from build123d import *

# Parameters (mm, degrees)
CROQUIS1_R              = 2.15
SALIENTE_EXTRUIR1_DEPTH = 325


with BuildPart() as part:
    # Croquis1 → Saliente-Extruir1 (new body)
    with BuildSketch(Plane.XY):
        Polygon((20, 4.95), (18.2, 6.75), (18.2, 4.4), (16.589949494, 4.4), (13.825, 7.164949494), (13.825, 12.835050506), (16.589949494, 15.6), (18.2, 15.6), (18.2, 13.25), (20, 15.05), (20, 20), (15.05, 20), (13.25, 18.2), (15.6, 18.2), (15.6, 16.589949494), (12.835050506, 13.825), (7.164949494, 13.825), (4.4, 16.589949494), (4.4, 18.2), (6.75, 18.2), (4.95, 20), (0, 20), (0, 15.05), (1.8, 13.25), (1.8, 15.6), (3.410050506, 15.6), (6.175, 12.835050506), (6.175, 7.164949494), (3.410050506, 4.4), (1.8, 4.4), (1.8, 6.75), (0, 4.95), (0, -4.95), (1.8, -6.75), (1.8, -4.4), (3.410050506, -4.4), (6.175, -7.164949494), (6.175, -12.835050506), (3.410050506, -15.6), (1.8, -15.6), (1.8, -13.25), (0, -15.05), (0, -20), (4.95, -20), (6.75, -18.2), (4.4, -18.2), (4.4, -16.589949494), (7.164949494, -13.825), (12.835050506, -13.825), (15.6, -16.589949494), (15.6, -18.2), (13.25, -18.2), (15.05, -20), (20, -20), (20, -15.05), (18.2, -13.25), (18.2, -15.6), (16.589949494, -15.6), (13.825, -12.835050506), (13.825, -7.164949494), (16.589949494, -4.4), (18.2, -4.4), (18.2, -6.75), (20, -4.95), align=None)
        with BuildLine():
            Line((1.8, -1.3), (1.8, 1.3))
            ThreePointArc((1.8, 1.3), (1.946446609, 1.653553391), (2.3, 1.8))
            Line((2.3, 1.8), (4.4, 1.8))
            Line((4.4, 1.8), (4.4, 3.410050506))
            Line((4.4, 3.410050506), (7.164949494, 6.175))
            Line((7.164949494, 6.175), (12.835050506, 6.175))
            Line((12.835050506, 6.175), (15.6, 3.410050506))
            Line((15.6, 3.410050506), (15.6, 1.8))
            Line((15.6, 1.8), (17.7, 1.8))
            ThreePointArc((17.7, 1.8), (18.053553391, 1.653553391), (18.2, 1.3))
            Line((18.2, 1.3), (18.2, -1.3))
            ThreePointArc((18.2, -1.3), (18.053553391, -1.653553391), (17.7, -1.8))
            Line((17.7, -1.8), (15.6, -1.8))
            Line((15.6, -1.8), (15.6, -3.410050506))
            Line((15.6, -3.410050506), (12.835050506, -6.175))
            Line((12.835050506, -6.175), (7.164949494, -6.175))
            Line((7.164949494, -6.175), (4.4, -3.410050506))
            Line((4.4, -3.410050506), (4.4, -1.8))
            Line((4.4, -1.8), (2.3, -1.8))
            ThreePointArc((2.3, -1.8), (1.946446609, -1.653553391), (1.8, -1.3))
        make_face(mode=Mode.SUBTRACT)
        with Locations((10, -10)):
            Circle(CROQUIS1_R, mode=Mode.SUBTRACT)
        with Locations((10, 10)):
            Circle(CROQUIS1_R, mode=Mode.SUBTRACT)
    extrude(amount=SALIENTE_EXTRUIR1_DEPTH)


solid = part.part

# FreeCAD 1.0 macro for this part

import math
import FreeCAD as App
import Part
import Sketcher

V = App.Vector
Q = App.Units.Quantity


def add_polygon(sketch, points):
    """Adds a closed chain of lines whose ends are joined by coincident constraints."""
    first, n = sketch.GeometryCount, len(points)
    for a, b in zip(points, points[1:] + points[:1]):
        sketch.addGeometry(Part.LineSegment(App.Vector(*a, 0), App.Vector(*b, 0)), False)
    for i in range(n):
        sketch.addConstraint(Sketcher.Constraint("Coincident", first + i, 2, first + (i + 1) % n, 1))

doc = App.newDocument("Part")
body = doc.addObject("PartDesign::Body", "Body")

# Sketch on XY plane
sketch1 = body.newObject("Sketcher::SketchObject", "Sketch")
sketch1.AttachmentSupport = (doc.getObject("XY_Plane"), [""])
sketch1.MapMode = "FlatFace"
add_polygon(sketch1, [(20, 4.95), (18.2, 6.75), (18.2, 4.4), (16.589949, 4.4), (13.825, 7.164949), (13.825, 12.835051), (16.589949, 15.6), (18.2, 15.6), (18.2, 13.25), (20, 15.05), (20, 20), (15.05, 20), (13.25, 18.2), (15.6, 18.2), (15.6, 16.589949), (12.835051, 13.825), (7.164949, 13.825), (4.4, 16.589949), (4.4, 18.2), (6.75, 18.2), (4.95, 20), (0, 20), (0, 15.05), (1.8, 13.25), (1.8, 15.6), (3.410051, 15.6), (6.175, 12.835051), (6.175, 7.164949), (3.410051, 4.4), (1.8, 4.4), (1.8, 6.75), (0, 4.95), (0, -4.95), (1.8, -6.75), (1.8, -4.4), (3.410051, -4.4), (6.175, -7.164949), (6.175, -12.835051), (3.410051, -15.6), (1.8, -15.6), (1.8, -13.25), (0, -15.05), (0, -20), (4.95, -20), (6.75, -18.2), (4.4, -18.2), (4.4, -16.589949), (7.164949, -13.825), (12.835051, -13.825), (15.6, -16.589949), (15.6, -18.2), (13.25, -18.2), (15.05, -20), (20, -20), (20, -15.05), (18.2, -13.25), (18.2, -15.6), (16.589949, -15.6), (13.825, -12.835051), (13.825, -7.164949), (16.589949, -4.4), (18.2, -4.4), (18.2, -6.75), (20, -4.95)])  # lines 0-63
sketch1.addGeometry(Part.Circle(V(10, -10, 0), V(0, 0, 1), 2.15), False)  # 64
sketch1.addGeometry(Part.ArcOfCircle(Part.Circle(V(2.3, -1.3, 0), V(0, 0, 1), 0.5), math.radians(180), math.radians(270)), False)  # 65
sketch1.addGeometry(Part.LineSegment(V(1.8, -1.3, 0), V(1.8, 1.3, 0)), False)  # 66
sketch1.addGeometry(Part.ArcOfCircle(Part.Circle(V(2.3, 1.3, 0), V(0, 0, 1), 0.5), math.radians(90), math.radians(180)), False)  # 67
sketch1.addGeometry(Part.LineSegment(V(2.3, 1.8, 0), V(4.4, 1.8, 0)), False)  # 68
sketch1.addGeometry(Part.LineSegment(V(4.4, 1.8, 0), V(4.4, 3.410051, 0)), False)  # 69
sketch1.addGeometry(Part.LineSegment(V(4.4, 3.410051, 0), V(7.164949, 6.175, 0)), False)  # 70
sketch1.addGeometry(Part.LineSegment(V(7.164949, 6.175, 0), V(12.835051, 6.175, 0)), False)  # 71
sketch1.addGeometry(Part.LineSegment(V(12.835051, 6.175, 0), V(15.6, 3.410051, 0)), False)  # 72
sketch1.addGeometry(Part.LineSegment(V(15.6, 3.410051, 0), V(15.6, 1.8, 0)), False)  # 73
sketch1.addGeometry(Part.LineSegment(V(15.6, 1.8, 0), V(17.7, 1.8, 0)), False)  # 74
sketch1.addGeometry(Part.ArcOfCircle(Part.Circle(V(17.7, 1.3, 0), V(0, 0, 1), 0.5), math.radians(0), math.radians(90)), False)  # 75
sketch1.addGeometry(Part.LineSegment(V(18.2, 1.3, 0), V(18.2, -1.3, 0)), False)  # 76
sketch1.addGeometry(Part.ArcOfCircle(Part.Circle(V(17.7, -1.3, 0), V(0, 0, 1), 0.5), math.radians(-90), math.radians(0)), False)  # 77
sketch1.addGeometry(Part.LineSegment(V(17.7, -1.8, 0), V(15.6, -1.8, 0)), False)  # 78
sketch1.addGeometry(Part.LineSegment(V(15.6, -1.8, 0), V(15.6, -3.410051, 0)), False)  # 79
sketch1.addGeometry(Part.LineSegment(V(15.6, -3.410051, 0), V(12.835051, -6.175, 0)), False)  # 80
sketch1.addGeometry(Part.LineSegment(V(12.835051, -6.175, 0), V(7.164949, -6.175, 0)), False)  # 81
sketch1.addGeometry(Part.LineSegment(V(7.164949, -6.175, 0), V(4.4, -3.410051, 0)), False)  # 82
sketch1.addGeometry(Part.LineSegment(V(4.4, -3.410051, 0), V(4.4, -1.8, 0)), False)  # 83
sketch1.addGeometry(Part.LineSegment(V(4.4, -1.8, 0), V(2.3, -1.8, 0)), False)  # 84
sketch1.addGeometry(Part.Circle(V(10, 10, 0), V(0, 0, 1), 2.15), False)  # 85
sketch1.addConstraint([
    Sketcher.Constraint("Tangent", 65, 1, 66, 1),
    Sketcher.Constraint("Tangent", 66, 2, 67, 2),
    Sketcher.Constraint("Tangent", 67, 1, 68, 1),
    Sketcher.Constraint("Coincident", 68, 2, 69, 1),
    Sketcher.Constraint("Coincident", 69, 2, 70, 1),
    Sketcher.Constraint("Coincident", 70, 2, 71, 1),
    Sketcher.Constraint("Coincident", 71, 2, 72, 1),
    Sketcher.Constraint("Coincident", 72, 2, 73, 1),
    Sketcher.Constraint("Coincident", 73, 2, 74, 1),
    Sketcher.Constraint("Tangent", 74, 2, 75, 2),
    Sketcher.Constraint("Tangent", 75, 1, 76, 1),
    Sketcher.Constraint("Tangent", 76, 2, 77, 2),
    Sketcher.Constraint("Tangent", 77, 1, 78, 1),
    Sketcher.Constraint("Coincident", 78, 2, 79, 1),
    Sketcher.Constraint("Coincident", 79, 2, 80, 1),
    Sketcher.Constraint("Coincident", 80, 2, 81, 1),
    Sketcher.Constraint("Coincident", 81, 2, 82, 1),
    Sketcher.Constraint("Coincident", 82, 2, 83, 1),
    Sketcher.Constraint("Coincident", 83, 2, 84, 1),
    Sketcher.Constraint("Tangent", 84, 2, 65, 2),
    Sketcher.Constraint("Vertical", 1),
    Sketcher.Constraint("Horizontal", 2),
    Sketcher.Constraint("Vertical", 4),
    Sketcher.Constraint("Horizontal", 6),
    Sketcher.Constraint("Vertical", 7),
    Sketcher.Constraint("Vertical", 9),
    Sketcher.Constraint("Horizontal", 10),
    Sketcher.Constraint("Horizontal", 12),
    Sketcher.Constraint("Vertical", 13),
    Sketcher.Constraint("Horizontal", 15),
    Sketcher.Constraint("Vertical", 17),
    Sketcher.Constraint("Horizontal", 18),
    Sketcher.Constraint("Horizontal", 20),
    Sketcher.Constraint("Vertical", 21),
    Sketcher.Constraint("Vertical", 23),
    Sketcher.Constraint("Horizontal", 24),
    Sketcher.Constraint("Vertical", 26),
    Sketcher.Constraint("Horizontal", 28),
    Sketcher.Constraint("Vertical", 29),
    Sketcher.Constraint("Vertical", 31),
    Sketcher.Constraint("Vertical", 33),
    Sketcher.Constraint("Horizontal", 34),
    Sketcher.Constraint("Vertical", 36),
    Sketcher.Constraint("Horizontal", 38),
    Sketcher.Constraint("Vertical", 39),
    Sketcher.Constraint("Vertical", 41),
    Sketcher.Constraint("Horizontal", 42),
    Sketcher.Constraint("Horizontal", 44),
    Sketcher.Constraint("Vertical", 45),
    Sketcher.Constraint("Horizontal", 47),
    Sketcher.Constraint("Vertical", 49),
    Sketcher.Constraint("Horizontal", 50),
    Sketcher.Constraint("Horizontal", 52),
    Sketcher.Constraint("Vertical", 53),
    Sketcher.Constraint("Vertical", 55),
    Sketcher.Constraint("Horizontal", 56),
    Sketcher.Constraint("Vertical", 58),
    Sketcher.Constraint("Horizontal", 60),
    Sketcher.Constraint("Vertical", 61),
    Sketcher.Constraint("Vertical", 63),
    Sketcher.Constraint("Vertical", 66),
    Sketcher.Constraint("Horizontal", 68),
    Sketcher.Constraint("Vertical", 69),
    Sketcher.Constraint("Horizontal", 71),
    Sketcher.Constraint("Vertical", 73),
    Sketcher.Constraint("Horizontal", 74),
    Sketcher.Constraint("Vertical", 76),
    Sketcher.Constraint("Horizontal", 78),
    Sketcher.Constraint("Vertical", 79),
    Sketcher.Constraint("Horizontal", 81),
    Sketcher.Constraint("Vertical", 83),
    Sketcher.Constraint("Horizontal", 84),
    Sketcher.Constraint("Equal", 65, 67),
    Sketcher.Constraint("Equal", 67, 75),
    Sketcher.Constraint("Equal", 75, 77),
    Sketcher.Constraint("Equal", 64, 85),
    Sketcher.Constraint("Symmetric", 30, 2, 31, 2, -1, 1),
    Sketcher.Constraint("Symmetric", 21, 2, 40, 2, -1, 1),
    Sketcher.Constraint("Symmetric", 64, 3, 85, 3, -1),
    Sketcher.Constraint("Symmetric", 29, 2, 32, 2, -1),
    Sketcher.Constraint("Symmetric", 27, 2, 34, 2, -1),
    Sketcher.Constraint("Symmetric", 26, 2, 35, 2, -1),
    Sketcher.Constraint("Symmetric", 24, 2, 37, 2, -1),
    Sketcher.Constraint("Symmetric", 22, 2, 39, 2, -1),
    Sketcher.Constraint("Symmetric", 20, 2, 41, 2, -1),
    Sketcher.Constraint("Symmetric", 18, 2, 43, 2, -1),
    Sketcher.Constraint("Symmetric", 16, 2, 45, 2, -1),
    Sketcher.Constraint("Symmetric", 15, 2, 46, 2, -1),
    Sketcher.Constraint("Symmetric", 13, 2, 48, 2, -1),
    Sketcher.Constraint("Symmetric", 11, 2, 50, 2, -1),
    Sketcher.Constraint("Symmetric", 10, 2, 51, 2, -1),
    Sketcher.Constraint("Symmetric", 8, 2, 53, 2, -1),
    Sketcher.Constraint("Symmetric", 7, 2, 54, 2, -1),
    Sketcher.Constraint("Symmetric", 5, 2, 56, 2, -1),
    Sketcher.Constraint("Symmetric", 4, 2, 57, 2, -1),
    Sketcher.Constraint("Symmetric", 2, 2, 59, 2, -1),
    Sketcher.Constraint("Symmetric", 0, 2, 61, 2, -1),
    Sketcher.Constraint("Symmetric", 73, 2, 78, 2, -1),
    Sketcher.Constraint("Symmetric", 71, 2, 80, 2, -1),
    Sketcher.Constraint("Symmetric", 69, 2, 82, 2, -1),
    Sketcher.Constraint("Parallel", 0, 3),
    Sketcher.Constraint("Perpendicular", 3, 5),
    Sketcher.Constraint("Parallel", 5, 8),
    Sketcher.Constraint("Parallel", 8, 11),
    Sketcher.Constraint("Parallel", 11, 14),
    Sketcher.Constraint("Perpendicular", 14, 16),
    Sketcher.Constraint("Parallel", 16, 19),
    Sketcher.Constraint("Parallel", 19, 22),
    Sketcher.Constraint("Parallel", 22, 25),
    Sketcher.Constraint("Perpendicular", 25, 27),
    Sketcher.Constraint("Parallel", 27, 30),
    Sketcher.Constraint("Perpendicular", 30, 32),
    Sketcher.Constraint("Perpendicular", 35, 37),
    Sketcher.Constraint("Parallel", 40, 43),
    Sketcher.Constraint("Perpendicular", 46, 48),
    Sketcher.Constraint("Perpendicular", 57, 59),
    Sketcher.Constraint("Parallel", 59, 62),
    Sketcher.Constraint("Parallel", 62, 70),
    Sketcher.Constraint("Perpendicular", 70, 72),
    Sketcher.Constraint("Perpendicular", 72, 80),
    Sketcher.Constraint("Perpendicular", 80, 82),
    Sketcher.Constraint("Horizontal", 67, 3, 75, 3),
    Sketcher.Constraint("Horizontal", 65, 3, 77, 3),
    Sketcher.Constraint("Horizontal", 13, 2, 16, 2),
    Sketcher.Constraint("Horizontal", 12, 2, 17, 2),
    Sketcher.Constraint("Horizontal", 10, 2, 19, 2),
    Sketcher.Constraint("Horizontal", 8, 2, 21, 2),
    Sketcher.Constraint("Horizontal", 7, 2, 22, 2),
    Sketcher.Constraint("Horizontal", 6, 2, 23, 2),
    Sketcher.Constraint("Horizontal", 4, 2, 25, 2),
    Sketcher.Constraint("Horizontal", 3, 2, 26, 2),
    Sketcher.Constraint("Horizontal", 2, 2, 27, 2),
    Sketcher.Constraint("Horizontal", 0, 2, 29, 2),
    Sketcher.Constraint("Horizontal", 31, 2, 62, 2),
    Sketcher.Constraint("Horizontal", 69, 2, 72, 2),
    Sketcher.Constraint("Vertical", 2, 2, 5, 2),
    Sketcher.Constraint("Vertical", 1, 2, 6, 2),
    Sketcher.Constraint("Vertical", 23, 2, 28, 2),
    Sketcher.Constraint("Vertical", 39, 2, 65, 1),
    Sketcher.Constraint("Vertical", 45, 2, 68, 2),
    Sketcher.Constraint("Vertical", 46, 2, 70, 2),
    Sketcher.Constraint("Vertical", 47, 2, 71, 2),
    Sketcher.Constraint("Vertical", 61, 2, 75, 1),
    Sketcher.Constraint("Equal", 12, 18),
    Sketcher.Constraint("Equal", 10, 20),
    Sketcher.Constraint("Equal", 6, 24),
    Sketcher.Constraint("Equal", 50, 1),
    Sketcher.Constraint("Equal", 81, 4),
    Sketcher.Constraint("Equal", 1, 7),
    Sketcher.Constraint("Equal", 52, 9),
    Sketcher.Constraint("Equal", 60, 13),
    Sketcher.Constraint("Equal", 49, 69),
    Sketcher.Constraint("Equal", 8, 11),
    Sketcher.Constraint("Equal", 5, 14),
    Sketcher.Constraint("Diameter", 64, Q("4.3 mm")),
    Sketcher.Constraint("Radius", 65, Q("0.5 mm")),
    Sketcher.Constraint("DistanceX", 68, 1, 68, 2, Q("2.1 mm")),
    Sketcher.Constraint("DistanceY", 31, 2, 31, 1, Q("9.9 mm")),
    Sketcher.Constraint("DistanceY", 66, 1, 66, 2, Q("2.6 mm")),
    Sketcher.Constraint("DistanceX", -1, 1, 64, 3, Q("10 mm")),
    Sketcher.Constraint("DistanceY", 64, 3, -1, 1, Q("10 mm")),
    Sketcher.Constraint("DistanceX", -1, 1, 8, 2, Q("20 mm")),
    Sketcher.Constraint("DistanceY", -1, 1, 9, 2, Q("20 mm")),
    Sketcher.Constraint("DistanceX", -1, 1, 65, 3, Q("2.3 mm")),
    Sketcher.Constraint("DistanceX", 15, 2, 15, 1, Q("5.670101 mm")),
    Sketcher.Constraint("DistanceX", -1, 1, 3, 2, Q("13.825 mm")),
])
pad1 = body.newObject("PartDesign::Pad", "Pad")
pad1.Profile = sketch1
pad1.Length = 325

doc.recompute()
